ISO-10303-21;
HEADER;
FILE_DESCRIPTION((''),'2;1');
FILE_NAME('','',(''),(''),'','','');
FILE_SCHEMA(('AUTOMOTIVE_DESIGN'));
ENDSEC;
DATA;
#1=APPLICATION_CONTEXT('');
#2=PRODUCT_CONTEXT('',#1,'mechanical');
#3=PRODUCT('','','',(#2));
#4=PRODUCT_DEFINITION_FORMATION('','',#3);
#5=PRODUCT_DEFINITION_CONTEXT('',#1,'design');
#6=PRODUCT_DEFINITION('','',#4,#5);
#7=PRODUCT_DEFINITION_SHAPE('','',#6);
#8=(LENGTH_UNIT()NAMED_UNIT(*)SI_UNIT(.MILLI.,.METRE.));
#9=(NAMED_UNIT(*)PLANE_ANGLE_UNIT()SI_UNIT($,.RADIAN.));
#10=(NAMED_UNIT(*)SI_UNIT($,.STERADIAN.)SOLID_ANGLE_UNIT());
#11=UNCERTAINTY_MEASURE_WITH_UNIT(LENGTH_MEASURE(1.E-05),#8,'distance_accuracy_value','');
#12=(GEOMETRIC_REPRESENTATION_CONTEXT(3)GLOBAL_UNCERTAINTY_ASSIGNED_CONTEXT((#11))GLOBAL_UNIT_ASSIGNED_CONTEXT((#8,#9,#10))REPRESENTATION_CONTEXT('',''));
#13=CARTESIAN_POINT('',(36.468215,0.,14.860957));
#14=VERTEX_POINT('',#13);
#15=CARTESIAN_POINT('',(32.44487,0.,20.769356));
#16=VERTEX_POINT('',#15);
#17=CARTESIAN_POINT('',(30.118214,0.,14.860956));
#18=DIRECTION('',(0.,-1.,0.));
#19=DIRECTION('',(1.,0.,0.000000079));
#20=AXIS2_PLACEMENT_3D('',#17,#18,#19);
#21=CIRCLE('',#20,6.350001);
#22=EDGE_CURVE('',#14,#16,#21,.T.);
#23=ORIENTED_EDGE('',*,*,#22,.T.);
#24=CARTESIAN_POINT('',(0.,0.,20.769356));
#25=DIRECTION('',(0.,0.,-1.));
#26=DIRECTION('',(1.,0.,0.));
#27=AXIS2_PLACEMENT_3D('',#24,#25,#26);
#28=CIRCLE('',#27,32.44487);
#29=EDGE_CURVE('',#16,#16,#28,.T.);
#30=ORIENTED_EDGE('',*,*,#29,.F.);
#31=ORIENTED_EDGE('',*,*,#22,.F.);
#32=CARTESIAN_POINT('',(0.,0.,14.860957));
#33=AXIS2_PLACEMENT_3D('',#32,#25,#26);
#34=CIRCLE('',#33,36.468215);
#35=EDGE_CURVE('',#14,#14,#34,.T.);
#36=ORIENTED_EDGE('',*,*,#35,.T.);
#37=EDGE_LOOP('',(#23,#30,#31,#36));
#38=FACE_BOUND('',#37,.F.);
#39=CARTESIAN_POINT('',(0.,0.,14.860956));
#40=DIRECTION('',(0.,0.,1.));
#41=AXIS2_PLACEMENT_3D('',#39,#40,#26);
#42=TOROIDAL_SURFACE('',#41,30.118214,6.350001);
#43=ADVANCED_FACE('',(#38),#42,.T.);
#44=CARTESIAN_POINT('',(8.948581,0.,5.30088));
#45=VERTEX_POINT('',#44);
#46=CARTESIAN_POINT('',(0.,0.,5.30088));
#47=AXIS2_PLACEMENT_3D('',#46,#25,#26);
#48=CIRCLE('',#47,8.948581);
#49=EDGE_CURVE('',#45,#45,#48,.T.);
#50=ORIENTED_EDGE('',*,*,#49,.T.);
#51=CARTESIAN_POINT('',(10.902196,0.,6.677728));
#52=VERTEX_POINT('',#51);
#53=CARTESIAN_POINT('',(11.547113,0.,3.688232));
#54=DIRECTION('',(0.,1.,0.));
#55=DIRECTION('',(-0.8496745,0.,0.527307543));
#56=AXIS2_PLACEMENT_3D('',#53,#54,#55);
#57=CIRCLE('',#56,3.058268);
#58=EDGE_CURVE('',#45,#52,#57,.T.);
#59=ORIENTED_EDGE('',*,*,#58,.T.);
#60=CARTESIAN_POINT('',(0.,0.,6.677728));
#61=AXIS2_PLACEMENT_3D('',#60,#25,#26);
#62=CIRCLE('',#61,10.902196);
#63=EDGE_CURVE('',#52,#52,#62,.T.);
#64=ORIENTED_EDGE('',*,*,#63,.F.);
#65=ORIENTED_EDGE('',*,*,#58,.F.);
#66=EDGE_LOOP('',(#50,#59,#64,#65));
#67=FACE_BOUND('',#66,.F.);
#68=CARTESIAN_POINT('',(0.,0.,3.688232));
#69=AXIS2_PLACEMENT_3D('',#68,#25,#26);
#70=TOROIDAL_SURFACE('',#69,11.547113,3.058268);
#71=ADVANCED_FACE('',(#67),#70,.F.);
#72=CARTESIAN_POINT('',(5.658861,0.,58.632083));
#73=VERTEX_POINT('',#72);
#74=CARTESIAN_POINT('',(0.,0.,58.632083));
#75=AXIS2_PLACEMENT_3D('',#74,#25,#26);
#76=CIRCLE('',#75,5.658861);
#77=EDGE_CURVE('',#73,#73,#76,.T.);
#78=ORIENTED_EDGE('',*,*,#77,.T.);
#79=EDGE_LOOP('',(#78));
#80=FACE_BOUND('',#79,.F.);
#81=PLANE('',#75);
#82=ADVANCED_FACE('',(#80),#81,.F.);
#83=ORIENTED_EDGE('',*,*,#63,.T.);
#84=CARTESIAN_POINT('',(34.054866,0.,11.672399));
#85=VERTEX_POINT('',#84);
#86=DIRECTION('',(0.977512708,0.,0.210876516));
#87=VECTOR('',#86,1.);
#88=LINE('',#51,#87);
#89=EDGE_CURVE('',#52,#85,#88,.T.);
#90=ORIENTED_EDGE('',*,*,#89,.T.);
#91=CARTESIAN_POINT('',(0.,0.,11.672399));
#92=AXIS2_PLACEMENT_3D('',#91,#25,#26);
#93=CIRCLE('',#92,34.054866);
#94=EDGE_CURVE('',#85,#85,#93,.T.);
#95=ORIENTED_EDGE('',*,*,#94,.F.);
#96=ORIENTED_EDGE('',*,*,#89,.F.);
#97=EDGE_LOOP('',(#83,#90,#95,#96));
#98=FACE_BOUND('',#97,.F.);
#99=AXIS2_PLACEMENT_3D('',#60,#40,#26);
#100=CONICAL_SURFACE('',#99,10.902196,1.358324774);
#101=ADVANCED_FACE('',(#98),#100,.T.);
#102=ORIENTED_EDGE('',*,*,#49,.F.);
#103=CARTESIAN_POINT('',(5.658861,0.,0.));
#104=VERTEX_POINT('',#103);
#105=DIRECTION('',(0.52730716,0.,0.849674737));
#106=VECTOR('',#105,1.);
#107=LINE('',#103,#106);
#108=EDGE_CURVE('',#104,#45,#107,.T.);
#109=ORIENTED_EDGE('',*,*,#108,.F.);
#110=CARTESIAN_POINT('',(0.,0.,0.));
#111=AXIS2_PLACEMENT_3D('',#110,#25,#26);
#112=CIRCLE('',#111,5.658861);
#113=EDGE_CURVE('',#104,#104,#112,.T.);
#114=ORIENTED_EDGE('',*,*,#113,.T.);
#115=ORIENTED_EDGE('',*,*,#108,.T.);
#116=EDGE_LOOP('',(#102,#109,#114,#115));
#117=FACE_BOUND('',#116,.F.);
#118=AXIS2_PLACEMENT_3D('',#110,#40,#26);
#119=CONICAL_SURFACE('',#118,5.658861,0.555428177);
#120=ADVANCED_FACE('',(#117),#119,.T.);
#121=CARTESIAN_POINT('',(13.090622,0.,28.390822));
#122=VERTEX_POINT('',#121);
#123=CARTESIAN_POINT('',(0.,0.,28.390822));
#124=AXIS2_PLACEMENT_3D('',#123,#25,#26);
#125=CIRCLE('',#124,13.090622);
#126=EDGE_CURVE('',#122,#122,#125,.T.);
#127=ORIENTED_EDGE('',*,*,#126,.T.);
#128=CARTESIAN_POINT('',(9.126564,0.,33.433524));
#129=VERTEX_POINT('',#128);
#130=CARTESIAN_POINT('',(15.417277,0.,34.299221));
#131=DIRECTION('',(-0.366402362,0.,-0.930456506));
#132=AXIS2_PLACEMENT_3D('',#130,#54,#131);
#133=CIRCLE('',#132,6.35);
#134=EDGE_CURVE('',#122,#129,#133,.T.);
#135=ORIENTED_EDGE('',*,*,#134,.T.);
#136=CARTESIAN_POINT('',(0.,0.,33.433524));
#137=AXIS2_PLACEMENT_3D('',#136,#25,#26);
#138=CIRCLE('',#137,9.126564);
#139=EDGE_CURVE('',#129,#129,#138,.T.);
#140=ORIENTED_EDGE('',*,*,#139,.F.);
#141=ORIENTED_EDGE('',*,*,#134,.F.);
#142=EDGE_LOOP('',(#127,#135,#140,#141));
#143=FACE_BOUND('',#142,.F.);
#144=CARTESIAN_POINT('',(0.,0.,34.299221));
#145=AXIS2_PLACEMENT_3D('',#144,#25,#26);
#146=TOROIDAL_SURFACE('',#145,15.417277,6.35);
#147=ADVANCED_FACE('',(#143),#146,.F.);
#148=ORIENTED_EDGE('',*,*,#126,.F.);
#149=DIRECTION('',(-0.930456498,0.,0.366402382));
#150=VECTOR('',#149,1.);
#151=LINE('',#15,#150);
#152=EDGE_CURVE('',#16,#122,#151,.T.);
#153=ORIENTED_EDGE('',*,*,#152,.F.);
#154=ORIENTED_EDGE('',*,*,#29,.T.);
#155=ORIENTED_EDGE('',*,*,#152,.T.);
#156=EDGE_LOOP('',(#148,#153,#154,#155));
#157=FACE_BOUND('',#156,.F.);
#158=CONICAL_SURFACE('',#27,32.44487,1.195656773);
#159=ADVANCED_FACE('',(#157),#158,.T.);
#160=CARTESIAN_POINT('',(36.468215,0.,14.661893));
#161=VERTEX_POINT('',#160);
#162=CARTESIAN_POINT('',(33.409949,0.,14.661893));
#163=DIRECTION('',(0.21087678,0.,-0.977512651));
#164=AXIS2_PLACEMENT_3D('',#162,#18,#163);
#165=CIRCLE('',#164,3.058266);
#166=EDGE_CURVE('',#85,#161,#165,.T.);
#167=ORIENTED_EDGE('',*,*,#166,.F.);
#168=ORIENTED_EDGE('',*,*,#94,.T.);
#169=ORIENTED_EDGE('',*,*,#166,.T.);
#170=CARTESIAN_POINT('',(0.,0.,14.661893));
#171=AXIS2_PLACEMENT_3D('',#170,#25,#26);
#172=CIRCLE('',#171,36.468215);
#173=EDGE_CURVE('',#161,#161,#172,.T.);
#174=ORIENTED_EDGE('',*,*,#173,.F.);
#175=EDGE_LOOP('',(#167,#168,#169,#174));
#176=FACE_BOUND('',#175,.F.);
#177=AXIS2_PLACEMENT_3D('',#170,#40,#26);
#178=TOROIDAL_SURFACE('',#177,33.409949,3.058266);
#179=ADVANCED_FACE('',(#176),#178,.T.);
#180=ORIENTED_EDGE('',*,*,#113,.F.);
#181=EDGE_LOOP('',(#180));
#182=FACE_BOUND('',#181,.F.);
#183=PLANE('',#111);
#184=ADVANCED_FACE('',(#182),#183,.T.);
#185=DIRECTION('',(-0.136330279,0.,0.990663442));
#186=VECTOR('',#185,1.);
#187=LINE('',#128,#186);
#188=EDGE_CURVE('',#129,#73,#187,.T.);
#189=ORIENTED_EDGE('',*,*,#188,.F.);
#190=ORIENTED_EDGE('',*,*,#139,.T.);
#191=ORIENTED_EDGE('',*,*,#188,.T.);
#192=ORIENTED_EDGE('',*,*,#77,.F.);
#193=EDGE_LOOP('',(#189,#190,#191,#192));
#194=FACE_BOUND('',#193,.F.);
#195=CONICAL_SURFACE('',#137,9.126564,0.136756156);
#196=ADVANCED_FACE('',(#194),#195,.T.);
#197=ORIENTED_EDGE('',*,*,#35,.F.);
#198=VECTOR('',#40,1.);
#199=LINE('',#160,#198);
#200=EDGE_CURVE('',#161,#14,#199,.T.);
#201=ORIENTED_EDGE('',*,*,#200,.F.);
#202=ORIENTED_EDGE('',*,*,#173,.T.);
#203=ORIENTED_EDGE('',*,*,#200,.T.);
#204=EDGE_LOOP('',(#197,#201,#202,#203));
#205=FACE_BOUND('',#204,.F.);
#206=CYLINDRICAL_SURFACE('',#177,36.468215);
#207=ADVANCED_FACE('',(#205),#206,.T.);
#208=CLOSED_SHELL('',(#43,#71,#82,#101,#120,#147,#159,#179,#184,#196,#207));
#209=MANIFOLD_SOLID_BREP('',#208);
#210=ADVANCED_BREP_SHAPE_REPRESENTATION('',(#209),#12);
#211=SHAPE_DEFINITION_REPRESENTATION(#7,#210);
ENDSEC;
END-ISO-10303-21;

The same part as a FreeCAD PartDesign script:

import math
import FreeCAD as App
import Part
import Sketcher
from FreeCAD import Vector
Q = App.Units.Quantity

doc = App.newDocument("Part")
body = doc.addObject("PartDesign::Body", "Body")

# Sketch on XZ plane
sketch1 = doc.addObject("Sketcher::SketchObject", "Sketch")
body.addObject(sketch1)
sketch1.AttachmentSupport = (doc.XZ_Plane, [""])
sketch1.MapMode = "FlatFace"
sketch1.addGeometry([
    Part.LineSegment(Vector(0, 58.632083, 0), Vector(0, 0, 0)),  # 0
    Part.LineSegment(Vector(0, 0, 0), Vector(5.658861, 0, 0)),  # 1
    Part.LineSegment(Vector(5.658861, 0, 0), Vector(8.948581, 5.30088, 0)),  # 2
    Part.ArcOfCircle(Part.Circle(Vector(11.547113, 3.688232, 0), Vector(0, 0, 1), 3.058268), math.radians(102.173733), math.radians(148.176284)),  # 3
    Part.LineSegment(Vector(10.902196, 6.677728, 0), Vector(34.054866, 11.672399, 0)),  # 4
    Part.ArcOfCircle(Part.Circle(Vector(33.409949, 14.661893, 0), Vector(0, 0, 1), 3.058266), math.radians(-77.826261), math.radians(-0.000001)),  # 5
    Part.LineSegment(Vector(36.468215, 14.661893, 0), Vector(36.468215, 14.860957, 0)),  # 6
    Part.ArcOfCircle(Part.Circle(Vector(30.118214, 14.860956, 0), Vector(0, 0, 1), 6.350001), math.radians(0.000005), math.radians(68.506082)),  # 7
    Part.LineSegment(Vector(32.44487, 20.769356, 0), Vector(13.090622, 28.390822, 0)),  # 8
    Part.ArcOfCircle(Part.Circle(Vector(15.417277, 34.299221, 0), Vector(0, 0, 1), 6.35), math.radians(-172.164453), math.radians(-111.493912)),  # 9
    Part.LineSegment(Vector(9.126564, 33.433524, 0), Vector(5.658861, 58.632083, 0)),  # 10
    Part.LineSegment(Vector(5.658861, 58.632083, 0), Vector(0, 58.632083, 0)),  # 11
], False)
sketch1.addConstraint([
    Sketcher.Constraint("Coincident", 0, 2, 1, 1),
    Sketcher.Constraint("Coincident", 1, 2, 2, 1),
    Sketcher.Constraint("Coincident", 2, 2, 3, 2),
    Sketcher.Constraint("Coincident", 3, 1, 4, 1),
    Sketcher.Constraint("Coincident", 4, 2, 5, 1),
    Sketcher.Constraint("Coincident", 5, 2, 6, 1),
    Sketcher.Constraint("Coincident", 6, 2, 7, 1),
    Sketcher.Constraint("Coincident", 7, 2, 8, 1),
    Sketcher.Constraint("Coincident", 8, 2, 9, 2),
    Sketcher.Constraint("Coincident", 9, 1, 10, 1),
    Sketcher.Constraint("Coincident", 10, 2, 11, 1),
    Sketcher.Constraint("Coincident", 11, 2, 0, 1),
    Sketcher.Constraint("Vertical", 0),
    Sketcher.Constraint("Horizontal", 1),
    Sketcher.Constraint("Vertical", 6),
    Sketcher.Constraint("Horizontal", 11),
    Sketcher.Constraint("Coincident", 0, 2, -1, 1),
    Sketcher.Constraint("Radius", 7, Q("0.25 in")),
    Sketcher.Constraint("Radius", 9, Q("0.25 in")),
    Sketcher.Constraint("Radius", 3, Q("3.058268 mm")),
    Sketcher.Constraint("Radius", 5, Q("3.058266 mm")),
    Sketcher.Constraint("DistanceX", 1, 1, 1, 2, Q("5.658861 mm")),
    Sketcher.Constraint("DistanceX", 11, 2, 11, 1, Q("5.658861 mm")),
    Sketcher.Constraint("DistanceY", -1, 1, 4, 2, Q("11.672399 mm")),
    Sketcher.Constraint("DistanceX", 3, 3, 7, 3, Q("18.571101 mm")),
    Sketcher.Constraint("DistanceY", 7, 3, 7, 2, Q("5.9084 mm")),
    Sketcher.Constraint("DistanceY", 6, 2, 7, 2, Q("5.908399 mm")),
    Sketcher.Constraint("DistanceY", 8, 2, 9, 3, Q("5.908399 mm")),
    Sketcher.Constraint("DistanceY", 8, 2, 9, 1, Q("5.042702 mm")),
    Sketcher.Constraint("Distance", 8, Q("20.800809 mm")),
    Sketcher.Constraint("DistanceY", 0, 2, 0, 1, Q("58.632083 mm")),
    Sketcher.Constraint("DistanceY", 6, 1, 6, 2, Q("0.199064 mm")),
    Sketcher.Constraint("DistanceX", -1, 1, 5, 3, Q("33.409949 mm")),
    Sketcher.Constraint("DistanceY", -1, 1, 9, 3, Q("34.299221 mm")),
    Sketcher.Constraint("DistanceX", -1, 1, 2, 2, Q("8.948581 mm")),
    Sketcher.Constraint("DistanceY", -1, 1, 2, 2, Q("5.30088 mm")),
    Sketcher.Constraint("DistanceY", -1, 1, 3, 1, Q("6.677728 mm")),
    Sketcher.Constraint("DistanceY", 3, 3, 5, 3, Q("10.973661 mm")),
    Sketcher.Constraint("DistanceX", 9, 3, 5, 3, Q("17.992672 mm")),
])
revolution = doc.addObject("PartDesign::Revolution", "Revolution")
body.addObject(revolution)
revolution.Profile = sketch1
revolution.ReferenceAxis = (sketch1, ["V_Axis"])
revolution.Angle = 360

doc.recompute()
